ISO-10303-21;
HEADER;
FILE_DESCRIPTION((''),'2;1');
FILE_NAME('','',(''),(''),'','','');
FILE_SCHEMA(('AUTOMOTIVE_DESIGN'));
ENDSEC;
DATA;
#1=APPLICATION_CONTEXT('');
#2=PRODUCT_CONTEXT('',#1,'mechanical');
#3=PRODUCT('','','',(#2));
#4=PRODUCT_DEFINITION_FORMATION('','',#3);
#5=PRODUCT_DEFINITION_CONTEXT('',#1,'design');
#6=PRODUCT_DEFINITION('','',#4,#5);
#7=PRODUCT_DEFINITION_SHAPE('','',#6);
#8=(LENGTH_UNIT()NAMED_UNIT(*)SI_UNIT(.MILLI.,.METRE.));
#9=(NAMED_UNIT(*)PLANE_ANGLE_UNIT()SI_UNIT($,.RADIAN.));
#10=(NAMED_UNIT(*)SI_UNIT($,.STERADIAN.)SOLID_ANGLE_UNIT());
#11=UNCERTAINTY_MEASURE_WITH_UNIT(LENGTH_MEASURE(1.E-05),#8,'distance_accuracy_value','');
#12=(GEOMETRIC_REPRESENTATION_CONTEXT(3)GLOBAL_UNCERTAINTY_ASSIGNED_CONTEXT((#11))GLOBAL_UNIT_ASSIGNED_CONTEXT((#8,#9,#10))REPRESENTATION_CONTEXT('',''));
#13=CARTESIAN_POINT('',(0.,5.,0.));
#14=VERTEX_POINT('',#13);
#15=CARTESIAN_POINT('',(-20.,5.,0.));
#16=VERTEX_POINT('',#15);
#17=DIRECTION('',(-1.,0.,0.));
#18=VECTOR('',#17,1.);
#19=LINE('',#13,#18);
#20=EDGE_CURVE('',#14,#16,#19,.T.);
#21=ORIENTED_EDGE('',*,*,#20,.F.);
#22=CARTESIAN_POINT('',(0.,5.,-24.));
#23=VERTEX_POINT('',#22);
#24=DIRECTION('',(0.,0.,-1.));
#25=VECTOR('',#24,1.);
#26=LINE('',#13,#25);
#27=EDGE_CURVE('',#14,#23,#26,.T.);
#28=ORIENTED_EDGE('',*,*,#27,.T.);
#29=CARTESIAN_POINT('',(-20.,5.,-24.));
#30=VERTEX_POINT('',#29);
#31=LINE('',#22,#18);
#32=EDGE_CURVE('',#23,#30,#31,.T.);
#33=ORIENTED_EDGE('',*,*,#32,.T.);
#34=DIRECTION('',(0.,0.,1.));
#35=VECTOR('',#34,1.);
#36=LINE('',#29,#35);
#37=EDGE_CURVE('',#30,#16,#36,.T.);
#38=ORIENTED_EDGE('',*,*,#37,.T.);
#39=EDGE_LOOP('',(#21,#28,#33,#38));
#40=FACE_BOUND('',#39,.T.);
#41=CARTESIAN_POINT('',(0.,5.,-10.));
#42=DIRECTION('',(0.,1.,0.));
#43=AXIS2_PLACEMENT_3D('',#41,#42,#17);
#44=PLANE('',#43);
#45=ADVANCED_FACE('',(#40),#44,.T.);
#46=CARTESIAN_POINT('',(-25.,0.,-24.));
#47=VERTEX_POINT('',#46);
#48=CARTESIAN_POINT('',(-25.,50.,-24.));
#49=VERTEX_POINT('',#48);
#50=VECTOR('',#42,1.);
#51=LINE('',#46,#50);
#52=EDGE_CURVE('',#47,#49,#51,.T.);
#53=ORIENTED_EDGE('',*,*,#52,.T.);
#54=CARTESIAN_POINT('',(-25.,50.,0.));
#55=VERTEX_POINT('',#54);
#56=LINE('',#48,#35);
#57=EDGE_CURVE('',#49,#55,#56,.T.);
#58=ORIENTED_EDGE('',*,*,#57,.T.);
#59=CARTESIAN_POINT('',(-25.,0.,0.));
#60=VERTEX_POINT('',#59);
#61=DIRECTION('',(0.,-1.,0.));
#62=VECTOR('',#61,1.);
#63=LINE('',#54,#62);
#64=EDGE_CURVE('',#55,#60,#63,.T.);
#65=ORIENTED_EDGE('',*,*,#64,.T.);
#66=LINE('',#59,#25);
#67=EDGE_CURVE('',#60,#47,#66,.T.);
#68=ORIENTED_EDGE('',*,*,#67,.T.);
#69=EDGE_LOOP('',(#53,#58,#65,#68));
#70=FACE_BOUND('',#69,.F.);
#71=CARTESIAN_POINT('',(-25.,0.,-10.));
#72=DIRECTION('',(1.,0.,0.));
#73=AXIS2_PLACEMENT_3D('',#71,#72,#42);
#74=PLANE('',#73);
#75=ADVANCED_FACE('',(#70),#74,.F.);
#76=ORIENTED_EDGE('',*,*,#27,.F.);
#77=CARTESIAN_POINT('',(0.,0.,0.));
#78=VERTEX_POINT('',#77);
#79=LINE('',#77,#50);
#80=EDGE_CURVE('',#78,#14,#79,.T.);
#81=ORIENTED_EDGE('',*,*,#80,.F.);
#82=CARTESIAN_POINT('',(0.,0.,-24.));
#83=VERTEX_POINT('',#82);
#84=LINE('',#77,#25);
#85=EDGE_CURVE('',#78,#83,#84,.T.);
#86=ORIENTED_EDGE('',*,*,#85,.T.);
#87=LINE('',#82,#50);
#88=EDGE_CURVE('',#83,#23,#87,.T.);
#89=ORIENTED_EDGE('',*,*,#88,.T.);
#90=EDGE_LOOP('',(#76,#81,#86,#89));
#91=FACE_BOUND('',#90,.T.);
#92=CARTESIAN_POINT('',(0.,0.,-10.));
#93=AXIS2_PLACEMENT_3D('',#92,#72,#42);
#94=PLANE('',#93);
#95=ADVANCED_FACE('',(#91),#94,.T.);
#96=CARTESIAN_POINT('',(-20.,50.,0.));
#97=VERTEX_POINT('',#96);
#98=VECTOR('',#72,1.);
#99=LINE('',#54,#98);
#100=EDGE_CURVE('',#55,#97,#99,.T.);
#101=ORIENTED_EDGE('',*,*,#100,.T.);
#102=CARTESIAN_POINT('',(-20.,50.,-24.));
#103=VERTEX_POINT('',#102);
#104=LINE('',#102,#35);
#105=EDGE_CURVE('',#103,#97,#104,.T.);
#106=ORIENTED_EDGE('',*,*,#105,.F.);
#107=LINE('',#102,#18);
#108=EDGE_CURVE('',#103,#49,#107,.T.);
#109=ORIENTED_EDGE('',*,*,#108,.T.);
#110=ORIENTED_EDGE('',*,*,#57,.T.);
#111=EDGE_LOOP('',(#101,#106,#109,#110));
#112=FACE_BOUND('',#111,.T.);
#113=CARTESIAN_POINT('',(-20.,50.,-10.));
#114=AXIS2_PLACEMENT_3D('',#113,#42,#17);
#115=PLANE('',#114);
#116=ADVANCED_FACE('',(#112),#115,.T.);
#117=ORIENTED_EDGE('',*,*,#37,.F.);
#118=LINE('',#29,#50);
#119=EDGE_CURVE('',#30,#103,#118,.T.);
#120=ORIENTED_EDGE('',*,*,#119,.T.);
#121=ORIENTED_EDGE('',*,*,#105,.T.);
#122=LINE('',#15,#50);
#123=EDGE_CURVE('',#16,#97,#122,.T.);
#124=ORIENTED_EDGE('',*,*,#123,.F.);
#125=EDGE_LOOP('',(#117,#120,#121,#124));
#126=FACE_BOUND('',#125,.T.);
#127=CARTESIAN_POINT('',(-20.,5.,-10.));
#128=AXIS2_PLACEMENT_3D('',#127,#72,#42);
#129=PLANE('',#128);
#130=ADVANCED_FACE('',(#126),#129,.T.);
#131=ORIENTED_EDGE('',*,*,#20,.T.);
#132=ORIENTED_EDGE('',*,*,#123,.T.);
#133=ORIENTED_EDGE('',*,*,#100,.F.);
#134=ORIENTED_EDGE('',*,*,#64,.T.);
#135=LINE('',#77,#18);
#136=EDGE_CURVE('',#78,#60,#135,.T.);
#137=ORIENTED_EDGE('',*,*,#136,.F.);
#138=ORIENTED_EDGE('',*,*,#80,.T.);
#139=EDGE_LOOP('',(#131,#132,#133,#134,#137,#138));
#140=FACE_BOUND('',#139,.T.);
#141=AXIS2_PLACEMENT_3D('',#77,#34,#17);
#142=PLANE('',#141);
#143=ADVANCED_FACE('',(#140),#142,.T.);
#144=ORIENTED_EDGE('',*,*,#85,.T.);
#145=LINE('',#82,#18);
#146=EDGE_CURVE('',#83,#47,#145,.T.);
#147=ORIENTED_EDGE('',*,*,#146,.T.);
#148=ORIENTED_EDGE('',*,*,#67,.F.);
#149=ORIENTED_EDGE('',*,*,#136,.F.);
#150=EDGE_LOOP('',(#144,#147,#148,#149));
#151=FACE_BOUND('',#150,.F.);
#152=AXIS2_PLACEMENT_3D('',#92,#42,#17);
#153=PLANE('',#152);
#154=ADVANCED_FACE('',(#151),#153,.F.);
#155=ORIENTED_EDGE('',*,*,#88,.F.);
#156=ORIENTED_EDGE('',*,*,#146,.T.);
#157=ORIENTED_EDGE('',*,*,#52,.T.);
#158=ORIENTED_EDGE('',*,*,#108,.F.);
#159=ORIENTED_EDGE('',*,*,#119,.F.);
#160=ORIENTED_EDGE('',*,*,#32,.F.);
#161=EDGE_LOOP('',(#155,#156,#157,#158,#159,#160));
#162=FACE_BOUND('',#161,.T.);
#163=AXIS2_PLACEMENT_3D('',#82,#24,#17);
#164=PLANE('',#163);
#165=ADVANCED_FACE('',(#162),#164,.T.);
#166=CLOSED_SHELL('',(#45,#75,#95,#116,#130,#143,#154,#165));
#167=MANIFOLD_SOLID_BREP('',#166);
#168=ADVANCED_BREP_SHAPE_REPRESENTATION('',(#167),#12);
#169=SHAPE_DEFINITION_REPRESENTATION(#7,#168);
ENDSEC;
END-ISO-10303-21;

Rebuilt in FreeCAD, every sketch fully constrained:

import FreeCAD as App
import Part
import Sketcher

V = App.Vector
Q = App.Units.Quantity

doc = App.newDocument("Part")
body = doc.addObject("PartDesign::Body", "Body")

sketch1 = body.newObject("Sketcher::SketchObject", "Sketch")
sketch1.AttachmentSupport = (doc.getObject("XZ_Plane"), [""])
sketch1.MapMode = "FlatFace"
sketch1.addGeometry([
    Part.LineSegment(V(-25, 0, 0), V(0, 0, 0)),
    Part.LineSegment(V(0, 0, 0), V(0, -10, 0)),
    Part.LineSegment(V(0, -10, 0), V(-25, -10, 0)),
    Part.LineSegment(V(-25, -10, 0), V(-25, 0, 0)),
], False)
sketch1.addConstraint([
    Sketcher.Constraint("Coincident", 0, 2, 1, 1),
    Sketcher.Constraint("Coincident", 1, 2, 2, 1),
    Sketcher.Constraint("Coincident", 2, 2, 3, 1),
    Sketcher.Constraint("Coincident", 3, 2, 0, 1),
    Sketcher.Constraint("Horizontal", 0),
    Sketcher.Constraint("Vertical", 1),
    Sketcher.Constraint("Horizontal", 2),
    Sketcher.Constraint("Vertical", 3),
    Sketcher.Constraint("Coincident", 0, 2, -1, 1),
    Sketcher.Constraint("DistanceX", 0, 1, 0, 2, Q("25 mm")),
    Sketcher.Constraint("DistanceY", 1, 2, 1, 1, Q("10 mm")),
])
pad1 = body.newObject("PartDesign::Pad", "Pad")
pad1.Profile = sketch1
pad1.Length = 5
pad1.Reversed = True

sketch2 = body.newObject("Sketcher::SketchObject", "Sketch001")
sketch2.AttachmentSupport = (doc.getObject("XZ_Plane"), [""])
sketch2.MapMode = "FlatFace"
sketch2.AttachmentOffset = App.Placement(V(0, 0, -5), App.Rotation())
sketch2.addGeometry([
    Part.LineSegment(V(-20, -10, 0), V(-25, -10, 0)),
    Part.LineSegment(V(-25, -10, 0), V(-25, 0, 0)),
    Part.LineSegment(V(-25, 0, 0), V(-20, 0, 0)),
    Part.LineSegment(V(-20, 0, 0), V(-20, -10, 0)),
], False)
sketch2.addConstraint([
    Sketcher.Constraint("Coincident", 0, 2, 1, 1),
    Sketcher.Constraint("Coincident", 1, 2, 2, 1),
    Sketcher.Constraint("Coincident", 2, 2, 3, 1),
    Sketcher.Constraint("Coincident", 3, 2, 0, 1),
    Sketcher.Constraint("Horizontal", 0),
    Sketcher.Constraint("Vertical", 1),
    Sketcher.Constraint("Horizontal", 2),
    Sketcher.Constraint("Vertical", 3),
    Sketcher.Constraint("PointOnObject", 1, 2, -1),
    Sketcher.Constraint("DistanceX", 0, 2, 0, 1, Q("5 mm")),
    Sketcher.Constraint("DistanceY", 1, 1, 1, 2, Q("10 mm")),
    Sketcher.Constraint("DistanceX", 0, 2, -1, 1, Q("25 mm")),
])
pad2 = body.newObject("PartDesign::Pad", "Pad001")
pad2.Profile = sketch2
pad2.Length = 45
pad2.Reversed = True

sketch3 = body.newObject("Sketcher::SketchObject", "Sketch002")
sketch3.AttachmentSupport = (doc.getObject("XY_Plane"), [""])
sketch3.MapMode = "FlatFace"
sketch3.AttachmentOffset = App.Placement(V(0, 0, -10), App.Rotation())
sketch3.addGeometry([
    Part.LineSegment(V(-20, 5, 0), V(0, 5, 0)),
    Part.LineSegment(V(0, 5, 0), V(0, 0, 0)),
    Part.LineSegment(V(0, 0, 0), V(-25, 0, 0)),
    Part.LineSegment(V(-25, 0, 0), V(-25, 50, 0)),
    Part.LineSegment(V(-25, 50, 0), V(-20, 50, 0)),
    Part.LineSegment(V(-20, 50, 0), V(-20, 5, 0)),
], False)
sketch3.addConstraint([
    Sketcher.Constraint("Coincident", 0, 2, 1, 1),
    Sketcher.Constraint("Coincident", 1, 2, 2, 1),
    Sketcher.Constraint("Coincident", 2, 2, 3, 1),
    Sketcher.Constraint("Coincident", 3, 2, 4, 1),
    Sketcher.Constraint("Coincident", 4, 2, 5, 1),
    Sketcher.Constraint("Coincident", 5, 2, 0, 1),
    Sketcher.Constraint("Horizontal", 0),
    Sketcher.Constraint("Vertical", 1),
    Sketcher.Constraint("Horizontal", 2),
    Sketcher.Constraint("Vertical", 3),
    Sketcher.Constraint("Horizontal", 4),
    Sketcher.Constraint("Vertical", 5),
    Sketcher.Constraint("Coincident", 1, 2, -1, 1),
    Sketcher.Constraint("Equal", 4, 1),
    Sketcher.Constraint("DistanceX", 0, 1, 0, 2, Q("20 mm")),
    Sketcher.Constraint("DistanceX", 2, 2, 2, 1, Q("25 mm")),
    Sketcher.Constraint("DistanceY", 3, 1, 3, 2, Q("50 mm")),
])
pad3 = body.newObject("PartDesign::Pad", "Pad002")
pad3.Profile = sketch3
pad3.Length = 14
pad3.Reversed = True

doc.recompute()
